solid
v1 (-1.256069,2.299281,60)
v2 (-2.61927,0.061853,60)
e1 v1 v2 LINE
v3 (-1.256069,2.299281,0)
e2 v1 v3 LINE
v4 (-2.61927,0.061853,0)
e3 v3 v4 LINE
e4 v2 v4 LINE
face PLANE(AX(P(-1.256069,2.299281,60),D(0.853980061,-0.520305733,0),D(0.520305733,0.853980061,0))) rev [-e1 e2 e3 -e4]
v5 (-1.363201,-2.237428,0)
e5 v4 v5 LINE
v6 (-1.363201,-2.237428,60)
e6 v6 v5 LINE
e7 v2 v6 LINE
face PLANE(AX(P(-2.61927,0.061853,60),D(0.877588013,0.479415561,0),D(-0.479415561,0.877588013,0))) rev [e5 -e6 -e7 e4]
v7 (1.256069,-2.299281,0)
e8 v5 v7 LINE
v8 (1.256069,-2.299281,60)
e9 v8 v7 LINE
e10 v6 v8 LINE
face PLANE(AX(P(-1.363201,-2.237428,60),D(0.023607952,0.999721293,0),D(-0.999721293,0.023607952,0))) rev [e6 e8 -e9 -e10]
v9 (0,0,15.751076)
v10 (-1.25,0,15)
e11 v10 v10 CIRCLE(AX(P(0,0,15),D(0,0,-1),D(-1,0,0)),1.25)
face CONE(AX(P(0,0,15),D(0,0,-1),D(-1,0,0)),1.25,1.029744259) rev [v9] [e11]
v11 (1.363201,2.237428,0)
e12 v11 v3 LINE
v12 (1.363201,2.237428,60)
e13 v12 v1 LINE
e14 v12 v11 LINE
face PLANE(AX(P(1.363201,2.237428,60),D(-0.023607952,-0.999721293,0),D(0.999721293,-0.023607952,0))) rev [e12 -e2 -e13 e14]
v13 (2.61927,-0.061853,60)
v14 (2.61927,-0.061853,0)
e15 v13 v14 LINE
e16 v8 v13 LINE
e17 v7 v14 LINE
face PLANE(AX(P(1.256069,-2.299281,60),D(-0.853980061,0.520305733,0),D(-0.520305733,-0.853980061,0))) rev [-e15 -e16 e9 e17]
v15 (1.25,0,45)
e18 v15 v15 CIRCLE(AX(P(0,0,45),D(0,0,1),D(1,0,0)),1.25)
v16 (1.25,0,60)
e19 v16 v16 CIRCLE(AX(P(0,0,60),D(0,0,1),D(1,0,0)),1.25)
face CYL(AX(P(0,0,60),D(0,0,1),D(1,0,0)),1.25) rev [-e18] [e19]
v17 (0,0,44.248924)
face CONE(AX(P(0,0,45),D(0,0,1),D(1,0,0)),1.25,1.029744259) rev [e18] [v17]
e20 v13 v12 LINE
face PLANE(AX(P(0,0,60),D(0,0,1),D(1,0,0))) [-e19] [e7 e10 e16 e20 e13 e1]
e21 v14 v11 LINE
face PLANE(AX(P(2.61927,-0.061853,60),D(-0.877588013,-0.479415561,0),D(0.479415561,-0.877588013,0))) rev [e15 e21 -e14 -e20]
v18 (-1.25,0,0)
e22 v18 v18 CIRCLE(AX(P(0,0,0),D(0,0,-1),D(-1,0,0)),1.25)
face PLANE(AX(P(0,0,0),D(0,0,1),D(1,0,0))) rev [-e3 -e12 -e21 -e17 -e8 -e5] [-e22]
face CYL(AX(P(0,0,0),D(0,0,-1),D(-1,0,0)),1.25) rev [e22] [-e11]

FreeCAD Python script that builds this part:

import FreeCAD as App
import Part
import Sketcher

V = App.Vector
Q = App.Units.Quantity

doc = App.newDocument("Part")
body = doc.addObject("PartDesign::Body", "Body")

# Sketch on XY plane
sketch1 = body.newObject("Sketcher::SketchObject", "Sketch")
sketch1.AttachmentSupport = (doc.getObject("XY_Plane"), [""])
sketch1.MapMode = "FlatFace"
sketch1.addGeometry(Part.LineSegment(V(1.4, 2.2, 0), V(-1.3, 2.3, 0)), False)
sketch1.addGeometry(Part.LineSegment(V(-1.3, 2.3, 0), V(-2.6, 0.1, 0)), False)
sketch1.addGeometry(Part.LineSegment(V(-2.6, 0.1, 0), V(-1.4, -2.2, 0)), False)
sketch1.addGeometry(Part.LineSegment(V(-1.4, -2.2, 0), V(1.3, -2.3, 0)), False)
sketch1.addGeometry(Part.LineSegment(V(1.3, -2.3, 0), V(2.6, -0.1, 0)), False)
sketch1.addGeometry(Part.LineSegment(V(2.6, -0.1, 0), V(1.4, 2.2, 0)), False)
sketch1.addConstraint(Sketcher.Constraint("Coincident", 0, 2, 1, 1))
sketch1.addConstraint(Sketcher.Constraint("Coincident", 1, 2, 2, 1))
sketch1.addConstraint(Sketcher.Constraint("Coincident", 2, 2, 3, 1))
sketch1.addConstraint(Sketcher.Constraint("Coincident", 3, 2, 4, 1))
sketch1.addConstraint(Sketcher.Constraint("Coincident", 4, 2, 5, 1))
sketch1.addConstraint(Sketcher.Constraint("Coincident", 5, 2, 0, 1))
sketch1.addConstraint(Sketcher.Constraint("Symmetric", 0, 2, 3, 2, -1, 1))
sketch1.addConstraint(Sketcher.Constraint("Symmetric", 1, 2, 4, 2, -1, 1))
sketch1.addConstraint(Sketcher.Constraint("Symmetric", 2, 2, 5, 2, -1, 1))
sketch1.addConstraint(Sketcher.Constraint("Equal", 0, 1))
sketch1.addConstraint(Sketcher.Constraint("Equal", 1, 2))
sketch1.addConstraint(Sketcher.Constraint("Distance", 0, Q("2.62 mm")))
sketch1.addConstraint(Sketcher.Constraint("DistanceX", 2, 2, -1, 1, Q("1.363201 mm")))
sketch1.addConstraint(Sketcher.Constraint("DistanceX", 1, 2, 0, 2, Q("1.363201 mm")))
sketch1.addConstraint(Sketcher.Constraint("DistanceX", 0, 2, -1, 1, Q("1.256069 mm")))
pad1 = body.newObject("PartDesign::Pad", "Pad")
pad1.Profile = sketch1
pad1.Length = 60

# Sketch on XY plane
sketch2 = body.newObject("Sketcher::SketchObject", "Sketch001")
sketch2.AttachmentSupport = (doc.getObject("XY_Plane"), [""])
sketch2.MapMode = "FlatFace"
sketch2.AttachmentOffset = App.Placement(V(0, 0, 60), App.Rotation())
sketch2.addGeometry(Part.Circle(V(0, 0, 0), V(0, 0, 1), 1.2), False)
sketch2.addConstraint(Sketcher.Constraint("Coincident", 0, 3, -1, 1))
sketch2.addConstraint(Sketcher.Constraint("Diameter", 0, Q("2.5 mm")))
doc.recompute()
hole = body.newObject("PartDesign::Hole", "Hole")
hole.Profile = sketch2
hole.ThreadType = "None"
hole.Diameter = 2.5
hole.DepthType = "Dimension"
hole.Depth = 15
hole.DrillPoint = "Angled"
hole.DrillPointAngle = 118

# Sketch on XY plane
sketch3 = body.newObject("Sketcher::SketchObject", "Sketch002")
sketch3.AttachmentSupport = (doc.getObject("XY_Plane"), [""])
sketch3.MapMode = "FlatFace"
sketch3.addGeometry(Part.Circle(V(0, 0, 0), V(0, 0, 1), 1.2), False)
sketch3.addConstraint(Sketcher.Constraint("Coincident", 0, 3, -1, 1))
sketch3.addConstraint(Sketcher.Constraint("Diameter", 0, Q("2.5 mm")))
doc.recompute()
hole2 = body.newObject("PartDesign::Hole", "Hole001")
hole2.Profile = sketch3
hole2.ThreadType = "None"
hole2.Diameter = 2.5
hole2.DepthType = "Dimension"
hole2.Depth = 15
hole2.DrillPoint = "Angled"
hole2.DrillPointAngle = 118
hole2.Reversed = True

doc.recompute()
